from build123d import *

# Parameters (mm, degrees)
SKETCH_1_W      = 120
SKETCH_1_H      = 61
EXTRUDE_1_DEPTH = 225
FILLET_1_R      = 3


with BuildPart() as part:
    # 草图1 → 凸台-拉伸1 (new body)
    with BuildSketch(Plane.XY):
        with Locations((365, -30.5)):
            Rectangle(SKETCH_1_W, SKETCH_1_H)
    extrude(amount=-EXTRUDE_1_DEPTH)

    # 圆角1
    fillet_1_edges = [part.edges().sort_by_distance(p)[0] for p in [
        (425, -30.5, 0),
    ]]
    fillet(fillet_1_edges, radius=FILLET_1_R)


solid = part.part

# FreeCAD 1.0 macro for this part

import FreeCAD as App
import Part
import Sketcher

V = App.Vector


def edges_at(feature, points):
    """Names of the edges that pass closest to the given points."""
    edges = feature.Shape.Edges
    near = lambda p: min(range(len(edges)), key=lambda i: edges[i].distToShape(Part.Vertex(*p))[0])
    return sorted({f"Edge{near(p) + 1}" for p in points})

doc = App.newDocument("Part")
params = doc.addObject("Spreadsheet::Sheet", "Params")
for row, (alias, value) in enumerate([
    ("sketch1_width", "120 mm"),
    ("sketch1_height", "61 mm"),
    ("pad1_length", "225 mm"),
    ("fillet_radius", "3 mm"),
], start=1):
    params.set(f"A{row}", alias)
    params.set(f"B{row}", "=" + value)
    params.setAlias(f"B{row}", alias)

body = doc.addObject("PartDesign::Body", "Body")

# Sketch on XY plane
sketch1 = doc.addObject("Sketcher::SketchObject", "Sketch")
body.addObject(sketch1)
sketch1.AttachmentSupport = (doc.XY_Plane, [""])
sketch1.MapMode = "FlatFace"
sketch1.addGeometry(Part.LineSegment(V(305, 0, 0), V(305, -61, 0)), False)
sketch1.addGeometry(Part.LineSegment(V(305, -61, 0), V(425, -61, 0)), False)
sketch1.addGeometry(Part.LineSegment(V(425, -61, 0), V(425, 0, 0)), False)
sketch1.addGeometry(Part.LineSegment(V(425, 0, 0), V(305, 0, 0)), False)
sketch1.addConstraint(Sketcher.Constraint("Coincident", 0, 2, 1, 1))
sketch1.addConstraint(Sketcher.Constraint("Coincident", 1, 2, 2, 1))
sketch1.addConstraint(Sketcher.Constraint("Coincident", 2, 2, 3, 1))
sketch1.addConstraint(Sketcher.Constraint("Coincident", 3, 2, 0, 1))
sketch1.addConstraint(Sketcher.Constraint("Vertical", 0))
sketch1.addConstraint(Sketcher.Constraint("Horizontal", 1))
sketch1.addConstraint(Sketcher.Constraint("Vertical", 2))
sketch1.addConstraint(Sketcher.Constraint("Horizontal", 3))
sketch1.addConstraint(Sketcher.Constraint("PointOnObject", 2, 2, -1))
sketch1.addConstraint(Sketcher.Constraint("DistanceX", 1, 1, 1, 2, 120.0))
sketch1.addConstraint(Sketcher.Constraint("DistanceY", 0, 2, 0, 1, 61.0))
sketch1.addConstraint(Sketcher.Constraint("DistanceX", -1, 1, 0, 2, 305.0))
sketch1.setExpression("Constraints[9]", "Params.sketch1_width")
sketch1.setExpression("Constraints[10]", "Params.sketch1_height")
pad1 = doc.addObject("PartDesign::Pad", "Pad")
body.addObject(pad1)
pad1.Profile = sketch1
pad1.setExpression("Length", "Params.pad1_length")
pad1.Reversed = True
doc.recompute()

fillet = doc.addObject("PartDesign::Fillet", "Fillet")
body.addObject(fillet)
fillet.Base = (pad1, edges_at(pad1, [(425, -30.5, 0)]))
fillet.setExpression("Radius", "Params.fillet_radius")

doc.recompute()
